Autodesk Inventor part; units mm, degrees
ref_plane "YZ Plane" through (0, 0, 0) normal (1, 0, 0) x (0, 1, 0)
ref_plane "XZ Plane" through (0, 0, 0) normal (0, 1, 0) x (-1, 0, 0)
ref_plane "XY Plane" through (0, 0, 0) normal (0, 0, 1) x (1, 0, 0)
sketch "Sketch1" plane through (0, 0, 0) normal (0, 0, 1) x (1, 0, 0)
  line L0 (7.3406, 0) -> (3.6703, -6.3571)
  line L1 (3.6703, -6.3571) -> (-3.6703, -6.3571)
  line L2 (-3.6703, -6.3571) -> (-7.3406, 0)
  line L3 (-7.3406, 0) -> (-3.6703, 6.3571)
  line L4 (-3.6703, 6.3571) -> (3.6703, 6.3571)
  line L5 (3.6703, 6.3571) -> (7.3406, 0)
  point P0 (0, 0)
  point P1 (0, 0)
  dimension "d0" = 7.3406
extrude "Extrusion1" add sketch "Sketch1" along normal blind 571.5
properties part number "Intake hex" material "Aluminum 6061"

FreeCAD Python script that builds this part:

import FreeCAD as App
import Part
import Sketcher

V = App.Vector
Q = App.Units.Quantity


def add_polygon(sketch, points):
    """Adds a closed chain of lines whose ends are joined by coincident constraints."""
    first, n = sketch.GeometryCount, len(points)
    for a, b in zip(points, points[1:] + points[:1]):
        sketch.addGeometry(Part.LineSegment(App.Vector(*a, 0), App.Vector(*b, 0)), False)
    for i in range(n):
        sketch.addConstraint(Sketcher.Constraint("Coincident", first + i, 2, first + (i + 1) % n, 1))

doc = App.newDocument("Part")
params = doc.addObject("Spreadsheet::Sheet", "Params")
for row, (alias, value) in enumerate([
    ("sketch1_width", "0.289 in"),
    ("sketch1_length", "0.289 in"),
    ("pad1_length", "22.5 in"),
], start=1):
    params.set(f"A{row}", alias)
    params.set(f"B{row}", "=" + value)
    params.setAlias(f"B{row}", alias)

body = doc.addObject("PartDesign::Body", "Body")

# Sketch on XY plane
sketch1 = body.newObject("Sketcher::SketchObject", "Sketch")
sketch1.AttachmentSupport = (doc.getObject("XY_Plane"), [""])
sketch1.MapMode = "FlatFace"
add_polygon(sketch1, [(4, -6), (7, 0), (4, 6), (-4, 6), (-7, 0), (-4, -6)])  # lines 0-5
sketch1.addConstraint([
    Sketcher.Constraint("Horizontal", 2),
    Sketcher.Constraint("Horizontal", 5),
    Sketcher.Constraint("Symmetric", 0, 2, 3, 2, -1, 1),
    Sketcher.Constraint("Symmetric", 1, 2, 4, 2, -1, 1),
    Sketcher.Constraint("PointOnObject", 0, 2, -1),
    Sketcher.Constraint("Parallel", 0, 3),
    Sketcher.Constraint("Vertical", 2, 2, 4, 2),
    Sketcher.Constraint("DistanceX", 2, 2, 2, 1, Q("0.289 in")),
    Sketcher.Constraint("Distance", 0, Q("0.289 in")),
    Sketcher.Constraint("DistanceX", -1, 1, 0, 2, Q("0.289 in")),
])
sketch1.setExpression("Constraints[13]", "Params.sketch1_width")
sketch1.setExpression("Constraints[14]", "Params.sketch1_length")
pad1 = body.newObject("PartDesign::Pad", "Pad")
pad1.Profile = sketch1
pad1.setExpression("Length", "Params.pad1_length")

doc.recompute()
